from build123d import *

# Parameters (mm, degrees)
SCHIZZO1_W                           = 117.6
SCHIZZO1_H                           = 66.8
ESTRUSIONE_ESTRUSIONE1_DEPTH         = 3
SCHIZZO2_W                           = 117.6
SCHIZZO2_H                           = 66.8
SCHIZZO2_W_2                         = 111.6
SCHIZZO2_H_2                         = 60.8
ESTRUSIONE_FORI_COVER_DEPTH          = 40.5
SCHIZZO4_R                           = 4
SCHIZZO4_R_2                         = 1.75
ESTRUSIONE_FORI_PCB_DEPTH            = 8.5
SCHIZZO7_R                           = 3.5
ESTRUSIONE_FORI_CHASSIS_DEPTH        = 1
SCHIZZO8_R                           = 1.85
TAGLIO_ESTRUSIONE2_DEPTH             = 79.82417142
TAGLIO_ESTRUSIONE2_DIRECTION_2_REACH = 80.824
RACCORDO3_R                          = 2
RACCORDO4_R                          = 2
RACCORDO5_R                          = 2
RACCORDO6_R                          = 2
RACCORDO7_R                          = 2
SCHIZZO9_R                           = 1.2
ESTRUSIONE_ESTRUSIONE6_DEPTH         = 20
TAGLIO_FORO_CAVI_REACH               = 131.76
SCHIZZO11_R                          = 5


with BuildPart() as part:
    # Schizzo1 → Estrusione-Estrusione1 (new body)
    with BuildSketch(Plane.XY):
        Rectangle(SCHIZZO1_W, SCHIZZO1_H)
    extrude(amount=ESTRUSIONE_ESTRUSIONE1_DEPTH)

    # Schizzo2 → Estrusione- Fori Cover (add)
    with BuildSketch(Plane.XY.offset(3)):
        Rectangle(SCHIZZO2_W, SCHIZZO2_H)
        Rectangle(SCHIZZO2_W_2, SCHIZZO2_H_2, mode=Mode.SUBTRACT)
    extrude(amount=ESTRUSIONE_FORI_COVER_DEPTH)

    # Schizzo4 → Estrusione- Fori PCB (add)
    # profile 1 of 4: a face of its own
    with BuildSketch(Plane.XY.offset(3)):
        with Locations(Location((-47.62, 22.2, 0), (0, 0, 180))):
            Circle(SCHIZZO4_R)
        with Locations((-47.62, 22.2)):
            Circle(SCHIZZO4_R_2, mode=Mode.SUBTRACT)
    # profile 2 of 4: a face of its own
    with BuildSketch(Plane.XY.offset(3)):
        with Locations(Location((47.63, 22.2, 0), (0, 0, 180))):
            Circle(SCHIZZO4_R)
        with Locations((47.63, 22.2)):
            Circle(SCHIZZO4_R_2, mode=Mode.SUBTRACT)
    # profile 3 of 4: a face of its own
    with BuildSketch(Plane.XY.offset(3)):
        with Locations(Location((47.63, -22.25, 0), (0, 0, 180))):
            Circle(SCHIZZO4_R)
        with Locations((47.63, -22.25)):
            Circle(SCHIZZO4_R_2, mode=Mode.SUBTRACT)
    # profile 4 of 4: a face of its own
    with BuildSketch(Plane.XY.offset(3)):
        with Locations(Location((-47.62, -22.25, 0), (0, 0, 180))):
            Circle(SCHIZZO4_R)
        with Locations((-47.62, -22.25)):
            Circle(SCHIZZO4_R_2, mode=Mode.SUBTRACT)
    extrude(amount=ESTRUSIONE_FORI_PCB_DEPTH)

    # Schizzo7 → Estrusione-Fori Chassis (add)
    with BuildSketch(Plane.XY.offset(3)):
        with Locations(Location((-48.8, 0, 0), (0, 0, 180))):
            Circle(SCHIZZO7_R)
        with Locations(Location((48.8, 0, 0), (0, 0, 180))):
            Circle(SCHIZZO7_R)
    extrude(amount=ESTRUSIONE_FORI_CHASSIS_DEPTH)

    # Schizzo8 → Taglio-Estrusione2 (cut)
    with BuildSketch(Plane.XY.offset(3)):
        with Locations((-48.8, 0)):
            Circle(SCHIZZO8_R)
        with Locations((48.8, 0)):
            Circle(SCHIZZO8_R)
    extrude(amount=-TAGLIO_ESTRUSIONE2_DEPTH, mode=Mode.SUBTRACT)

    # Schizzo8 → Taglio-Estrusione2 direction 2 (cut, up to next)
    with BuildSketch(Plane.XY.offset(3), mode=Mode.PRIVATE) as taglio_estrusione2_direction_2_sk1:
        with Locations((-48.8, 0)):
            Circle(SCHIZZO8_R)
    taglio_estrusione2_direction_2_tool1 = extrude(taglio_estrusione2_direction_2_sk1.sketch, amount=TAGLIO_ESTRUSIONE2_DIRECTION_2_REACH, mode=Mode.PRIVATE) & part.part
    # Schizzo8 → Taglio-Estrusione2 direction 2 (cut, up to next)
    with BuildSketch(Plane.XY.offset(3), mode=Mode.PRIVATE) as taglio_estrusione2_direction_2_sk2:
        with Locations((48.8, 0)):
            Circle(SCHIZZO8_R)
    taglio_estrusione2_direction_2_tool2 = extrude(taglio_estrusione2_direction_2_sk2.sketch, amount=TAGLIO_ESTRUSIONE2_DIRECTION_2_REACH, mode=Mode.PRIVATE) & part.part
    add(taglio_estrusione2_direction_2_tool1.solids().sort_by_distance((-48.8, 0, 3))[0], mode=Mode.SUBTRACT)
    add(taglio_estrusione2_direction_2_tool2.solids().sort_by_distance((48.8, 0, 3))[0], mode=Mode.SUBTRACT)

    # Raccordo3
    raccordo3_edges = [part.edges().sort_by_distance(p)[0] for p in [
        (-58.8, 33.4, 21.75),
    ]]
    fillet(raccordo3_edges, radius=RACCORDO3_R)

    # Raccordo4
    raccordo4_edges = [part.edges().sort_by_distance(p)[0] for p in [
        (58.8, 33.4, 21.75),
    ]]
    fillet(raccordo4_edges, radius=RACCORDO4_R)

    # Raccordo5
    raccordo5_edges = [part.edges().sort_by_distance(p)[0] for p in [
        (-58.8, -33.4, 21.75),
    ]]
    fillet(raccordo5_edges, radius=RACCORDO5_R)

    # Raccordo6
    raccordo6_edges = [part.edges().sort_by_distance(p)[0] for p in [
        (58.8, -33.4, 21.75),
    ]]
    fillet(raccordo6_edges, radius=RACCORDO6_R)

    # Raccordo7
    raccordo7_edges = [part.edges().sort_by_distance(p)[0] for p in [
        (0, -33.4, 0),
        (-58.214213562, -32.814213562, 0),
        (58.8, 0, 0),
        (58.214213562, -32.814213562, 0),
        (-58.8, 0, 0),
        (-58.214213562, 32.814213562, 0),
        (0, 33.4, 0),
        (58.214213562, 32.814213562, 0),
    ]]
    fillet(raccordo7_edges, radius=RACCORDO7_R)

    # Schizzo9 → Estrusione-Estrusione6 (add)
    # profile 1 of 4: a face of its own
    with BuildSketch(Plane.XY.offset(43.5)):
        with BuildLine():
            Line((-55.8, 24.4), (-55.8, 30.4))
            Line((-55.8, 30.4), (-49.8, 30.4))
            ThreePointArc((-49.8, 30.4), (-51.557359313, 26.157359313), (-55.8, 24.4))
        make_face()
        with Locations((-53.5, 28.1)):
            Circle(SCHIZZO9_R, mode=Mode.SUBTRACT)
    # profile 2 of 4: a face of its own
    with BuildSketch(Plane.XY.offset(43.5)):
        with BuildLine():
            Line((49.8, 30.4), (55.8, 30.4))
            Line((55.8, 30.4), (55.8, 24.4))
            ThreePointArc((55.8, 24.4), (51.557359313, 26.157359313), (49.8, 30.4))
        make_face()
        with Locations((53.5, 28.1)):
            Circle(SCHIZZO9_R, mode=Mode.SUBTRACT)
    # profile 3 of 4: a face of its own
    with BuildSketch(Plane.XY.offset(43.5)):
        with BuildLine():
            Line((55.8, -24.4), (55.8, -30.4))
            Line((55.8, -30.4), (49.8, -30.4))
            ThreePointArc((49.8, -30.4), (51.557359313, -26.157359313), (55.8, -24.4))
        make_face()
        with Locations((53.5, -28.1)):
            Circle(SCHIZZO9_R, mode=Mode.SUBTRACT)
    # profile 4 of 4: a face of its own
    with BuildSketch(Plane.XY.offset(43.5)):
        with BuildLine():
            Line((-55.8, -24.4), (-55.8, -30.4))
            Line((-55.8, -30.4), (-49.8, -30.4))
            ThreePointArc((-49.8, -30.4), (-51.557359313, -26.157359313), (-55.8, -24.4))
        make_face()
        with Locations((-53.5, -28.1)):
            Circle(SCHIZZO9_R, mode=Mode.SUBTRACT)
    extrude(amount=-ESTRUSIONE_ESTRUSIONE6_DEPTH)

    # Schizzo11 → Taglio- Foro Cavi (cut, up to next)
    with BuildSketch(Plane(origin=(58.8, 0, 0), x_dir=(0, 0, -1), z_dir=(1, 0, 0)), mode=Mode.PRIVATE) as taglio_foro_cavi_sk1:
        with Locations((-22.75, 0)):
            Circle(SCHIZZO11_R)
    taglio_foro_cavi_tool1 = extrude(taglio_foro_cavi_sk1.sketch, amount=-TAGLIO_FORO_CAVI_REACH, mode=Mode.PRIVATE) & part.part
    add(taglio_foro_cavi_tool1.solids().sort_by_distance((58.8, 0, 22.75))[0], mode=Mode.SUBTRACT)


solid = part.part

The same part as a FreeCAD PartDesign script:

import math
import FreeCAD as App
import Part
import Sketcher
from FreeCAD import Vector
Q = App.Units.Quantity


def edges_at(feature, points):
    """Names of the edges that pass closest to the given points."""
    edges = feature.Shape.Edges
    near = lambda p: min(range(len(edges)), key=lambda i: edges[i].distToShape(Part.Vertex(*p))[0])
    return sorted({f"Edge{near(p) + 1}" for p in points})

doc = App.newDocument("Part")
body = doc.addObject("PartDesign::Body", "Body")

# Sketch on XY plane
sketch1 = body.newObject("Sketcher::SketchObject", "Sketch")
sketch1.AttachmentSupport = (doc.getObject("XY_Plane"), [""])
sketch1.MapMode = "FlatFace"
sketch1.addGeometry([
    Part.LineSegment(Vector(-59, 33, 0), Vector(-59, -33, 0)),
    Part.LineSegment(Vector(-59, -33, 0), Vector(59, -33, 0)),
    Part.LineSegment(Vector(59, -33, 0), Vector(59, 33, 0)),
    Part.LineSegment(Vector(59, 33, 0), Vector(-59, 33, 0)),
], False)
sketch1.addConstraint([
    Sketcher.Constraint("Coincident", 0, 2, 1, 1),
    Sketcher.Constraint("Coincident", 1, 2, 2, 1),
    Sketcher.Constraint("Coincident", 2, 2, 3, 1),
    Sketcher.Constraint("Coincident", 3, 2, 0, 1),
    Sketcher.Constraint("Vertical", 0),
    Sketcher.Constraint("Horizontal", 1),
    Sketcher.Constraint("Vertical", 2),
    Sketcher.Constraint("Horizontal", 3),
    Sketcher.Constraint("Symmetric", 0, 2, 2, 2, -1, 1),
    Sketcher.Constraint("DistanceX", 1, 1, 1, 2, Q("117.6 mm")),
    Sketcher.Constraint("DistanceY", 0, 2, 0, 1, Q("66.8 mm")),
])
pad1 = body.newObject("PartDesign::Pad", "Pad")
pad1.Profile = sketch1
pad1.Length = 3

# Sketch on XY plane
sketch2 = body.newObject("Sketcher::SketchObject", "Sketch001")
sketch2.AttachmentSupport = (doc.getObject("XY_Plane"), [""])
sketch2.MapMode = "FlatFace"
sketch2.AttachmentOffset = App.Placement(Vector(0, 0, 3), App.Rotation())
sketch2.addGeometry([
    Part.LineSegment(Vector(-59, 33, 0), Vector(-59, -33, 0)),  # 0
    Part.LineSegment(Vector(-59, -33, 0), Vector(59, -33, 0)),  # 1
    Part.LineSegment(Vector(59, -33, 0), Vector(59, 33, 0)),  # 2
    Part.LineSegment(Vector(59, 33, 0), Vector(-59, 33, 0)),  # 3
    Part.LineSegment(Vector(56, -30, 0), Vector(-56, -30, 0)),  # 4
    Part.LineSegment(Vector(-56, -30, 0), Vector(-56, 30, 0)),  # 5
    Part.LineSegment(Vector(-56, 30, 0), Vector(56, 30, 0)),  # 6
    Part.LineSegment(Vector(56, 30, 0), Vector(56, -30, 0)),  # 7
], False)
sketch2.addConstraint([
    Sketcher.Constraint("Coincident", 0, 2, 1, 1),
    Sketcher.Constraint("Coincident", 1, 2, 2, 1),
    Sketcher.Constraint("Coincident", 2, 2, 3, 1),
    Sketcher.Constraint("Coincident", 3, 2, 0, 1),
    Sketcher.Constraint("Coincident", 4, 2, 5, 1),
    Sketcher.Constraint("Coincident", 5, 2, 6, 1),
    Sketcher.Constraint("Coincident", 6, 2, 7, 1),
    Sketcher.Constraint("Coincident", 7, 2, 4, 1),
    Sketcher.Constraint("Vertical", 0),
    Sketcher.Constraint("Horizontal", 1),
    Sketcher.Constraint("Vertical", 2),
    Sketcher.Constraint("Horizontal", 3),
    Sketcher.Constraint("Horizontal", 4),
    Sketcher.Constraint("Vertical", 5),
    Sketcher.Constraint("Horizontal", 6),
    Sketcher.Constraint("Vertical", 7),
    Sketcher.Constraint("Symmetric", 0, 2, 2, 2, -1, 1),
    Sketcher.Constraint("Symmetric", 4, 2, 6, 2, -1, 1),
    Sketcher.Constraint("DistanceX", 1, 1, 1, 2, Q("117.6 mm")),
    Sketcher.Constraint("DistanceX", 4, 2, 4, 1, Q("111.6 mm")),
    Sketcher.Constraint("DistanceY", 0, 2, 0, 1, Q("66.8 mm")),
    Sketcher.Constraint("DistanceY", 5, 1, 5, 2, Q("60.8 mm")),
])
pad2 = body.newObject("PartDesign::Pad", "Pad001")
pad2.Profile = sketch2
pad2.Length = 40.5

# Sketch on XY plane
sketch3 = body.newObject("Sketcher::SketchObject", "Sketch002")
sketch3.AttachmentSupport = (doc.getObject("XY_Plane"), [""])
sketch3.MapMode = "FlatFace"
sketch3.AttachmentOffset = App.Placement(Vector(0, 0, 3), App.Rotation())
sketch3.addGeometry([
    Part.Circle(Vector(-47.6, 22.2, 0), Vector(0, 0, 1), 4),  # 0
    Part.Circle(Vector(-47.6, 22.2, 0), Vector(0, 0, 1), 1.8),  # 1
    Part.Circle(Vector(47.6, 22.2, 0), Vector(0, 0, 1), 4),  # 2
    Part.Circle(Vector(47.6, 22.2, 0), Vector(0, 0, 1), 1.8),  # 3
    Part.Circle(Vector(47.6, -22.2, 0), Vector(0, 0, 1), 4),  # 4
    Part.Circle(Vector(47.6, -22.2, 0), Vector(0, 0, 1), 1.8),  # 5
    Part.Circle(Vector(-47.6, -22.2, 0), Vector(0, 0, 1), 4),  # 6
    Part.Circle(Vector(-47.6, -22.2, 0), Vector(0, 0, 1), 1.8),  # 7
], False)
sketch3.addConstraint([
    Sketcher.Constraint("Coincident", 1, 3, 0, 3),
    Sketcher.Constraint("Coincident", 3, 3, 2, 3),
    Sketcher.Constraint("Coincident", 5, 3, 4, 3),
    Sketcher.Constraint("Coincident", 7, 3, 6, 3),
    Sketcher.Constraint("Equal", 0, 2),
    Sketcher.Constraint("Equal", 1, 3),
    Sketcher.Constraint("Equal", 2, 4),
    Sketcher.Constraint("Equal", 3, 5),
    Sketcher.Constraint("Equal", 4, 6),
    Sketcher.Constraint("Equal", 5, 7),
    Sketcher.Constraint("Horizontal", 1, 3, 2, 3),
    Sketcher.Constraint("Horizontal", 5, 3, 6, 3),
    Sketcher.Constraint("Vertical", 3, 3, 4, 3),
    Sketcher.Constraint("Vertical", 1, 3, 6, 3),
    Sketcher.Constraint("Diameter", 0, Q("8 mm")),
    Sketcher.Constraint("Diameter", 1, Q("3.5 mm")),
    Sketcher.Constraint("DistanceY", -1, 1, 0, 3, Q("22.2 mm")),
    Sketcher.Constraint("DistanceX", 0, 3, -1, 1, Q("47.62 mm")),
    Sketcher.Constraint("DistanceX", -1, 1, 2, 3, Q("47.63 mm")),
    Sketcher.Constraint("DistanceY", 4, 3, -1, 1, Q("22.25 mm")),
])
pad3 = body.newObject("PartDesign::Pad", "Pad002")
pad3.Profile = sketch3
pad3.Length = 8.5

# Sketch on XY plane
sketch4 = body.newObject("Sketcher::SketchObject", "Sketch003")
sketch4.AttachmentSupport = (doc.getObject("XY_Plane"), [""])
sketch4.MapMode = "FlatFace"
sketch4.AttachmentOffset = App.Placement(Vector(0, 0, 3), App.Rotation())
sketch4.addGeometry([
    Part.Circle(Vector(-48.8, 0, 0), Vector(0, 0, 1), 3.5),
    Part.Circle(Vector(48.8, 0, 0), Vector(0, 0, 1), 3.5),
], False)
sketch4.addConstraint([
    Sketcher.Constraint("Equal", 0, 1),
    Sketcher.Constraint("Symmetric", 0, 3, 1, 3, -1, 1),
    Sketcher.Constraint("PointOnObject", 0, 3, -1),
    Sketcher.Constraint("Diameter", 0, Q("7 mm")),
    Sketcher.Constraint("DistanceX", 0, 3, -1, 1, Q("48.8 mm")),
])
pad4 = body.newObject("PartDesign::Pad", "Pad003")
pad4.Profile = sketch4
pad4.Length = 1

# Sketch on XY plane
sketch5 = body.newObject("Sketcher::SketchObject", "Sketch004")
sketch5.AttachmentSupport = (doc.getObject("XY_Plane"), [""])
sketch5.MapMode = "FlatFace"
sketch5.AttachmentOffset = App.Placement(Vector(0, 0, 3), App.Rotation())
sketch5.addGeometry([
    Part.Circle(Vector(-48.8, 0, 0), Vector(0, 0, 1), 1.9),
    Part.Circle(Vector(48.8, 0, 0), Vector(0, 0, 1), 1.9),
], False)
sketch5.addConstraint([
    Sketcher.Constraint("Equal", 0, 1),
    Sketcher.Constraint("Symmetric", 0, 3, 1, 3, -1, 1),
    Sketcher.Constraint("PointOnObject", 0, 3, -1),
    Sketcher.Constraint("Diameter", 0, Q("3.7 mm")),
    Sketcher.Constraint("DistanceX", 0, 3, -1, 1, Q("48.8 mm")),
])
pocket1 = body.newObject("PartDesign::Pocket", "Pocket")
pocket1.Profile = sketch5
pocket1.Length = 79.824171

# Sketch on XY plane
sketch6 = body.newObject("Sketcher::SketchObject", "Sketch005")
sketch6.AttachmentSupport = (doc.getObject("XY_Plane"), [""])
sketch6.MapMode = "FlatFace"
sketch6.AttachmentOffset = App.Placement(Vector(0, 0, 3), App.Rotation())
sketch6.addGeometry(Part.Circle(Vector(-48.8, 0, 0), Vector(0, 0, 1), 1.9), False)
sketch6.addConstraint([
    Sketcher.Constraint("PointOnObject", 0, 3, -1),
    Sketcher.Constraint("Diameter", 0, Q("3.7 mm")),
    Sketcher.Constraint("DistanceX", 0, 3, -1, 1, Q("48.8 mm")),
])
pocket2 = body.newObject("PartDesign::Pocket", "Pocket001")
pocket2.Profile = sketch6
pocket2.Type = "UpToFirst"
pocket2.Reversed = True

# Sketch on XY plane
sketch7 = body.newObject("Sketcher::SketchObject", "Sketch006")
sketch7.AttachmentSupport = (doc.getObject("XY_Plane"), [""])
sketch7.MapMode = "FlatFace"
sketch7.AttachmentOffset = App.Placement(Vector(0, 0, 3), App.Rotation())
sketch7.addGeometry(Part.Circle(Vector(48.8, 0, 0), Vector(0, 0, 1), 1.9), False)
sketch7.addConstraint([
    Sketcher.Constraint("PointOnObject", 0, 3, -1),
    Sketcher.Constraint("Diameter", 0, Q("3.7 mm")),
    Sketcher.Constraint("DistanceX", -1, 1, 0, 3, Q("48.8 mm")),
])
pocket3 = body.newObject("PartDesign::Pocket", "Pocket002")
pocket3.Profile = sketch7
pocket3.Type = "UpToFirst"
pocket3.Reversed = True
doc.recompute()

fillet = body.newObject("PartDesign::Fillet", "Fillet")
fillet.Base = (pocket3, edges_at(pocket3, [(-58.8, 33.4, 21.75)]))
fillet.Radius = 2
doc.recompute()

fillet2 = body.newObject("PartDesign::Fillet", "Fillet001")
fillet2.Base = (fillet, edges_at(fillet, [(58.8, 33.4, 21.75)]))
fillet2.Radius = 2
doc.recompute()

fillet3 = body.newObject("PartDesign::Fillet", "Fillet002")
fillet3.Base = (fillet2, edges_at(fillet2, [(-58.8, -33.4, 21.75)]))
fillet3.Radius = 2
doc.recompute()

fillet4 = body.newObject("PartDesign::Fillet", "Fillet003")
fillet4.Base = (fillet3, edges_at(fillet3, [(58.8, -33.4, 21.75)]))
fillet4.Radius = 2
doc.recompute()

fillet5 = body.newObject("PartDesign::Fillet", "Fillet004")
fillet5.Base = (fillet4, edges_at(fillet4, [
    (0, -33.4, 0),
    (-58.214, -32.814, 0),
    (58.8, 0, 0),
    (58.214, -32.814, 0),
    (-58.8, 0, 0),
    (-58.214, 32.814, 0),
    (0, 33.4, 0),
    (58.214, 32.814, 0),
]))
fillet5.Radius = 2

# Sketch on XY plane
sketch8 = body.newObject("Sketcher::SketchObject", "Sketch007")
sketch8.AttachmentSupport = (doc.getObject("XY_Plane"), [""])
sketch8.MapMode = "FlatFace"
sketch8.AttachmentOffset = App.Placement(Vector(0, 0, 43.5), App.Rotation())
sketch8.addGeometry([
    Part.LineSegment(Vector(-55.8, 30.4, 0), Vector(-55.8, 24.4, 0)),  # 0
    Part.ArcOfCircle(Part.Circle(Vector(-55.8, 30.4, 0), Vector(0, 0, 1), 6), math.radians(-90), math.radians(0)),  # 1
    Part.LineSegment(Vector(-49.8, 30.4, 0), Vector(-55.8, 30.4, 0)),  # 2
    Part.Circle(Vector(-53.5, 28.1, 0), Vector(0, 0, 1), 1.2),  # 3
    Part.LineSegment(Vector(55.8, 30.4, 0), Vector(49.8, 30.4, 0)),  # 4
    Part.ArcOfCircle(Part.Circle(Vector(55.8, 30.4, 0), Vector(0, 0, 1), 6), math.radians(180), math.radians(270)),  # 5
    Part.LineSegment(Vector(55.8, 24.4, 0), Vector(55.8, 30.4, 0)),  # 6
    Part.Circle(Vector(53.5, 28.1, 0), Vector(0, 0, 1), 1.2),  # 7
    Part.LineSegment(Vector(55.8, -30.4, 0), Vector(55.8, -24.4, 0)),  # 8
    Part.ArcOfCircle(Part.Circle(Vector(55.8, -30.4, 0), Vector(0, 0, 1), 6), math.radians(90), math.radians(180)),  # 9
    Part.LineSegment(Vector(49.8, -30.4, 0), Vector(55.8, -30.4, 0)),  # 10
    Part.Circle(Vector(53.5, -28.1, 0), Vector(0, 0, 1), 1.2),  # 11
    Part.LineSegment(Vector(-55.8, -24.4, 0), Vector(-55.8, -30.4, 0)),  # 12
    Part.LineSegment(Vector(-55.8, -30.4, 0), Vector(-49.8, -30.4, 0)),  # 13
    Part.ArcOfCircle(Part.Circle(Vector(-55.8, -30.4, 0), Vector(0, 0, 1), 6), math.radians(0), math.radians(90)),  # 14
    Part.Circle(Vector(-53.5, -28.1, 0), Vector(0, 0, 1), 1.2),  # 15
], False)
sketch8.addConstraint([
    Sketcher.Constraint("Coincident", 0, 2, 1, 1),
    Sketcher.Constraint("Coincident", 1, 2, 2, 1),
    Sketcher.Constraint("Coincident", 2, 2, 0, 1),
    Sketcher.Constraint("Coincident", 4, 2, 5, 1),
    Sketcher.Constraint("Coincident", 5, 2, 6, 1),
    Sketcher.Constraint("Coincident", 6, 2, 4, 1),
    Sketcher.Constraint("Coincident", 8, 2, 9, 1),
    Sketcher.Constraint("Coincident", 9, 2, 10, 1),
    Sketcher.Constraint("Coincident", 10, 2, 8, 1),
    Sketcher.Constraint("Coincident", 12, 2, 13, 1),
    Sketcher.Constraint("Coincident", 13, 2, 14, 1),
    Sketcher.Constraint("Coincident", 14, 2, 12, 1),
    Sketcher.Constraint("Vertical", 0),
    Sketcher.Constraint("Horizontal", 2),
    Sketcher.Constraint("Horizontal", 4),
    Sketcher.Constraint("Vertical", 6),
    Sketcher.Constraint("Vertical", 8),
    Sketcher.Constraint("Horizontal", 10),
    Sketcher.Constraint("Vertical", 12),
    Sketcher.Constraint("Horizontal", 13),
    Sketcher.Constraint("Coincident", 2, 2, 1, 3),
    Sketcher.Constraint("Coincident", 6, 2, 5, 3),
    Sketcher.Constraint("Coincident", 10, 2, 9, 3),
    Sketcher.Constraint("Coincident", 12, 2, 14, 3),
    Sketcher.Constraint("Equal", 1, 5),
    Sketcher.Constraint("Equal", 3, 7),
    Sketcher.Constraint("Equal", 5, 9),
    Sketcher.Constraint("Equal", 7, 11),
    Sketcher.Constraint("Equal", 9, 14),
    Sketcher.Constraint("Equal", 11, 15),
    Sketcher.Constraint("Symmetric", 1, 3, 9, 3, -1, 1),
    Sketcher.Constraint("Symmetric", 3, 3, 11, 3, -1, 1),
    Sketcher.Constraint("Symmetric", 5, 3, 14, 3, -1, 1),
    Sketcher.Constraint("Symmetric", 7, 3, 15, 3, -1, 1),
    Sketcher.Constraint("Symmetric", 1, 3, 5, 3, -2),
    Sketcher.Constraint("Symmetric", 3, 3, 7, 3, -2),
    Sketcher.Constraint("Radius", 1, Q("6 mm")),
    Sketcher.Constraint("Diameter", 3, Q("2.4 mm")),
    Sketcher.Constraint("DistanceX", 3, 3, 7, 3, Q("107 mm")),
    Sketcher.Constraint("DistanceX", 1, 3, -1, 1, Q("55.8 mm")),
    Sketcher.Constraint("DistanceY", -1, 1, 1, 3, Q("30.4 mm")),
    Sketcher.Constraint("DistanceY", -1, 1, 3, 3, Q("28.1 mm")),
])
pad5 = body.newObject("PartDesign::Pad", "Pad004")
pad5.Profile = sketch8
pad5.Length = 20
pad5.Reversed = True

# Sketch on YZ plane
sketch9 = body.newObject("Sketcher::SketchObject", "Sketch008")
sketch9.AttachmentSupport = (doc.getObject("YZ_Plane"), [""])
sketch9.MapMode = "FlatFace"
sketch9.AttachmentOffset = App.Placement(Vector(0, 0, 58.8), App.Rotation())
sketch9.addGeometry(Part.Circle(Vector(0, 23, 0), Vector(0, 0, 1), 5), False)
sketch9.addConstraint([
    Sketcher.Constraint("PointOnObject", 0, 3, -2),
    Sketcher.Constraint("Diameter", 0, Q("10 mm")),
    Sketcher.Constraint("DistanceY", -1, 1, 0, 3, Q("22.75 mm")),
])
pocket4 = body.newObject("PartDesign::Pocket", "Pocket003")
pocket4.Profile = sketch9
pocket4.Type = "UpToFirst"

doc.recompute()
